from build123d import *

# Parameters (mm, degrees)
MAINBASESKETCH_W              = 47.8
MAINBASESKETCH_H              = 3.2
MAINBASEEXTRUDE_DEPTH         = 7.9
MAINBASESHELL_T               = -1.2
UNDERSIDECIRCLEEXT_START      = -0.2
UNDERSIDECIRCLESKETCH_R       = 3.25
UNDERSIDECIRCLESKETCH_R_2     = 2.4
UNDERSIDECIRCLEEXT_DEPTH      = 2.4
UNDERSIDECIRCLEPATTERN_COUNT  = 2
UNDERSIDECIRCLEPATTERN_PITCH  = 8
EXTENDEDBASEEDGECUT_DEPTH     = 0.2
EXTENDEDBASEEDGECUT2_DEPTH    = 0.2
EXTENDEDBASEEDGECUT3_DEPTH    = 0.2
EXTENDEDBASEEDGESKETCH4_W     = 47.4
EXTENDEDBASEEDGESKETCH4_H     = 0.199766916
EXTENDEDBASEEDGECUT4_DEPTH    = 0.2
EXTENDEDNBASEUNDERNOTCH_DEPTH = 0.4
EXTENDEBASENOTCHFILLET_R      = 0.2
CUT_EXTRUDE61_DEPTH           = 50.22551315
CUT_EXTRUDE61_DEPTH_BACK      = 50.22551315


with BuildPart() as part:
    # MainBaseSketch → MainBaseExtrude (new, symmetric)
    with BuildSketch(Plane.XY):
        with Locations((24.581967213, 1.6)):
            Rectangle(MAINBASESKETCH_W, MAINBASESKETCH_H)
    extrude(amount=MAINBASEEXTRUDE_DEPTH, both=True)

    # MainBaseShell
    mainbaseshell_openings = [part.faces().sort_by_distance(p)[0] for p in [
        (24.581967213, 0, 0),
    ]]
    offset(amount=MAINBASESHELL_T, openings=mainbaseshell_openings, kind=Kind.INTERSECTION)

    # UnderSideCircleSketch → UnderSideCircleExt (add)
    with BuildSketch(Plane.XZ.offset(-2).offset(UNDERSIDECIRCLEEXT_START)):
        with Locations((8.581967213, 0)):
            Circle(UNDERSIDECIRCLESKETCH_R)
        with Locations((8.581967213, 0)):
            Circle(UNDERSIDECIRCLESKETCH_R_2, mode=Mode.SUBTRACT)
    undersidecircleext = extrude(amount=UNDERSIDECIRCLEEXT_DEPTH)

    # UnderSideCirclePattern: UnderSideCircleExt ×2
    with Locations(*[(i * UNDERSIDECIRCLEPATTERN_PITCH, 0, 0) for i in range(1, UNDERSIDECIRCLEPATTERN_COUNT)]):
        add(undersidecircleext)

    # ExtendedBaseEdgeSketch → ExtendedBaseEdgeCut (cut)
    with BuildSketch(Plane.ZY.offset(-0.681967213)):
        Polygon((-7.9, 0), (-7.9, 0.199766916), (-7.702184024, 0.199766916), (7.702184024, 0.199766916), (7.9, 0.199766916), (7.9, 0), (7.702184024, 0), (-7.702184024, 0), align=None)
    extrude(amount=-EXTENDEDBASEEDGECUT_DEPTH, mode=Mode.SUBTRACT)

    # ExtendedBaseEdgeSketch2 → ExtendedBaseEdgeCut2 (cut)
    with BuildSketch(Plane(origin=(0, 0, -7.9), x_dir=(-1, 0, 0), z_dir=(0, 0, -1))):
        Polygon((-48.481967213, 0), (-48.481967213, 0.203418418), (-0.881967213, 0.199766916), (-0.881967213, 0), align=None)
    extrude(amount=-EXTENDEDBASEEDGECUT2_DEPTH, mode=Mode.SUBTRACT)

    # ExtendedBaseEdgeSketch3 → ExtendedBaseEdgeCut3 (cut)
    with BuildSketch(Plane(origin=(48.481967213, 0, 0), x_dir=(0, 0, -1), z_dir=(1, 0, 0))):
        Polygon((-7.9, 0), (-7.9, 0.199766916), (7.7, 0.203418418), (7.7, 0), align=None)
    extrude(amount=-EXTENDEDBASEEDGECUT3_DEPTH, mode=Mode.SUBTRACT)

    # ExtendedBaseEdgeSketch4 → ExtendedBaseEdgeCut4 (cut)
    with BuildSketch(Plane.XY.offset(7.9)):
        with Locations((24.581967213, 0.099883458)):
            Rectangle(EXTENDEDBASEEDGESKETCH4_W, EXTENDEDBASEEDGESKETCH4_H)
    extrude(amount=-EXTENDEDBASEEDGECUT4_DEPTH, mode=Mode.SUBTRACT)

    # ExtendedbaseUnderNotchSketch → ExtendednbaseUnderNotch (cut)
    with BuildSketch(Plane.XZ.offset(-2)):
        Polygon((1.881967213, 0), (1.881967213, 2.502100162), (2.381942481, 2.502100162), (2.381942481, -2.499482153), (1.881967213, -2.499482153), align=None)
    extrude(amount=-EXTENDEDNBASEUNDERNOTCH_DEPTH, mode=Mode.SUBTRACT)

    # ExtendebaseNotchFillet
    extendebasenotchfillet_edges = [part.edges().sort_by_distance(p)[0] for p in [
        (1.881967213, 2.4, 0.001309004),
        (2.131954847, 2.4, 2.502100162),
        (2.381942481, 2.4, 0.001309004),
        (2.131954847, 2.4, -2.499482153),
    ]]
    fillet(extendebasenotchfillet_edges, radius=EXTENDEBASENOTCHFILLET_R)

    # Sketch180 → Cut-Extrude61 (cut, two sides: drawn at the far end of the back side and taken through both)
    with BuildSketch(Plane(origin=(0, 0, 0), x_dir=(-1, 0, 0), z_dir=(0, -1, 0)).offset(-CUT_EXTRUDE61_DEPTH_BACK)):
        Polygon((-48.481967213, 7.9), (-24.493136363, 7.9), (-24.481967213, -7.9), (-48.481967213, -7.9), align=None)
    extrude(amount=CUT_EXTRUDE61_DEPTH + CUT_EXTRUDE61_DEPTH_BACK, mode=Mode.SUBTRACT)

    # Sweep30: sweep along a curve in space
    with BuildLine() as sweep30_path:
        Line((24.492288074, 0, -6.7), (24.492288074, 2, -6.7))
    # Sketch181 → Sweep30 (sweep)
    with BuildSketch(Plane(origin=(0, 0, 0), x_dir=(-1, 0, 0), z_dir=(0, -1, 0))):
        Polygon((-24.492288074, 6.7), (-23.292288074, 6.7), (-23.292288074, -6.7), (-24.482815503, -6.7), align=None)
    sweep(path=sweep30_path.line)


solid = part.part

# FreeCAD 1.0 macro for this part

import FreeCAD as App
import Part
import Sketcher


def edges_at(feature, points):
    """Names of the edges that pass closest to the given points."""
    edges = feature.Shape.Edges
    near = lambda p: min(range(len(edges)), key=lambda i: edges[i].distToShape(Part.Vertex(*p))[0])
    return sorted({f"Edge{near(p) + 1}" for p in points})


def faces_at(feature, points):
    """Names of the faces that lie closest to the given points."""
    faces = feature.Shape.Faces
    near = lambda p: min(range(len(faces)), key=lambda i: faces[i].distToShape(Part.Vertex(*p))[0])
    return sorted({f"Face{near(p) + 1}" for p in points})


def add_polygon(sketch, points):
    """Adds a closed chain of lines whose ends are joined by coincident constraints."""
    first, n = sketch.GeometryCount, len(points)
    for a, b in zip(points, points[1:] + points[:1]):
        sketch.addGeometry(Part.LineSegment(App.Vector(*a, 0), App.Vector(*b, 0)), False)
    for i in range(n):
        sketch.addConstraint(Sketcher.Constraint("Coincident", first + i, 2, first + (i + 1) % n, 1))

doc = App.newDocument("Part")
body = doc.addObject("PartDesign::Body", "Body")

sketch1 = body.newObject("Sketcher::SketchObject", "Sketch")
sketch1.AttachmentSupport = (doc.getObject("XY_Plane"), [""])
sketch1.MapMode = "FlatFace"
add_polygon(sketch1, [(0.7, 3.2), (0.7, 0), (48.5, 0), (48.5, 3.2)])
sketch1.addConstraint([
    Sketcher.Constraint("Vertical", 0),
    Sketcher.Constraint("Horizontal", 1),
    Sketcher.Constraint("Vertical", 2),
    Sketcher.Constraint("Horizontal", 3),
    Sketcher.Constraint("PointOnObject", 0, 2, -1),
    Sketcher.Constraint("DistanceX", 1, 1, 1, 2, 47.8),
    Sketcher.Constraint("DistanceY", 0, 2, 0, 1, 3.2),
    Sketcher.Constraint("DistanceX", -1, 1, 0, 2, 0.681967),
])
pad1 = body.newObject("PartDesign::Pad", "Pad")
pad1.Profile = sketch1
pad1.Length = 15.8
pad1.Midplane = True
doc.recompute()

thickness = body.newObject("PartDesign::Thickness", "Thickness")
thickness.Base = (pad1, faces_at(pad1, [(24.582, 0, 0)]))
thickness.Value = 1.2
thickness.Reversed = True
thickness.Join = "Intersection"

sketch2 = body.newObject("Sketcher::SketchObject", "Sketch001")
sketch2.AttachmentSupport = (doc.getObject("XZ_Plane"), [""])
sketch2.MapMode = "FlatFace"
sketch2.AttachmentOffset = App.Placement(App.Vector(0, 0, -2.2), App.Rotation())
sketch2.addGeometry([
    Part.Circle(App.Vector(8.6, 0, 0), App.Vector(0, 0, 1), 3.2),
    Part.Circle(App.Vector(8.6, 0, 0), App.Vector(0, 0, 1), 2.4),
], False)
sketch2.addConstraint([
    Sketcher.Constraint("Coincident", 1, 3, 0, 3),
    Sketcher.Constraint("PointOnObject", 0, 3, -1),
    Sketcher.Constraint("Diameter", 0, 6.5),
    Sketcher.Constraint("Diameter", 1, 4.8),
    Sketcher.Constraint("DistanceX", -1, 1, 0, 3, 8.581967),
])
pad2 = body.newObject("PartDesign::Pad", "Pad001")
pad2.Profile = sketch2
pad2.Length = 2.4
doc.recompute()

linearpattern = body.newObject("PartDesign::LinearPattern", "LinearPattern")
linearpattern.Originals = [pad2]
linearpattern.Direction = (doc.getObject("X_Axis"), [""])
linearpattern.Mode = "offset"
linearpattern.Offset = 8
linearpattern.Occurrences = 2
body.Tip = linearpattern

sketch3 = body.newObject("Sketcher::SketchObject", "Sketch002")
sketch3.AttachmentSupport = (doc.getObject("YZ_Plane"), [""])
sketch3.MapMode = "FlatFace"
sketch3.AttachmentOffset = App.Placement(App.Vector(0, 0, 0.681967), App.Rotation())
add_polygon(sketch3, [(0.2, -7.9), (0, -7.9), (0, 7.9), (0.2, 7.9)])
sketch3.addConstraint([
    Sketcher.Constraint("Horizontal", 0),
    Sketcher.Constraint("Vertical", 1),
    Sketcher.Constraint("Horizontal", 2),
    Sketcher.Constraint("Vertical", 3),
    Sketcher.Constraint("Symmetric", 0, 2, 1, 2, -1, 1),
    Sketcher.Constraint("DistanceY", 1, 1, 1, 2, 15.8),
    Sketcher.Constraint("DistanceX", 0, 2, 0, 1, 0.199767),
])
pocket1 = body.newObject("PartDesign::Pocket", "Pocket")
pocket1.Profile = sketch3
pocket1.Length = 0.2
pocket1.Reversed = True

sketch4 = body.newObject("Sketcher::SketchObject", "Sketch003")
sketch4.AttachmentSupport = (doc.getObject("XY_Plane"), [""])
sketch4.MapMode = "FlatFace"
sketch4.AttachmentOffset = App.Placement(App.Vector(0, 0, -7.9), App.Rotation())
add_polygon(sketch4, [(48.48, 0.2), (48.48, 0), (0.88, 0), (0.88, 0.2)])
sketch4.addConstraint([
    Sketcher.Constraint("Vertical", 0),
    Sketcher.Constraint("Horizontal", 1),
    Sketcher.Constraint("Vertical", 2),
    Sketcher.Constraint("PointOnObject", 0, 2, -1),
    Sketcher.Constraint("DistanceX", 1, 2, 1, 1, 47.6),
    Sketcher.Constraint("DistanceY", 0, 2, 0, 1, 0.203418),
    Sketcher.Constraint("DistanceY", 2, 1, 2, 2, 0.199767),
    Sketcher.Constraint("DistanceX", -1, 1, 0, 2, 48.481967),
])
pocket2 = body.newObject("PartDesign::Pocket", "Pocket001")
pocket2.Profile = sketch4
pocket2.Length = 0.2
pocket2.Reversed = True

sketch5 = body.newObject("Sketcher::SketchObject", "Sketch004")
sketch5.AttachmentSupport = (doc.getObject("YZ_Plane"), [""])
sketch5.MapMode = "FlatFace"
sketch5.AttachmentOffset = App.Placement(App.Vector(0, 0, 48.481967), App.Rotation())
add_polygon(sketch5, [(0.2, 7.9), (0, 7.9), (0, -7.7), (0.2, -7.7)])
sketch5.addConstraint([
    Sketcher.Constraint("Horizontal", 0),
    Sketcher.Constraint("Vertical", 1),
    Sketcher.Constraint("Horizontal", 2),
    Sketcher.Constraint("PointOnObject", 0, 2, -2),
    Sketcher.Constraint("DistanceY", 1, 2, 1, 1, 15.6),
    Sketcher.Constraint("DistanceY", -1, 1, 0, 2, 7.9),
    Sketcher.Constraint("DistanceX", 2, 1, 2, 2, 0.203418),
    Sketcher.Constraint("DistanceX", 0, 2, 0, 1, 0.199767),
])
pocket3 = body.newObject("PartDesign::Pocket", "Pocket002")
pocket3.Profile = sketch5
pocket3.Length = 0.2

sketch6 = body.newObject("Sketcher::SketchObject", "Sketch005")
sketch6.AttachmentSupport = (doc.getObject("XY_Plane"), [""])
sketch6.MapMode = "FlatFace"
sketch6.AttachmentOffset = App.Placement(App.Vector(0, 0, 7.9), App.Rotation())
add_polygon(sketch6, [(0.88, 0.2), (0.88, 0), (48.28, 0), (48.28, 0.2)])
sketch6.addConstraint([
    Sketcher.Constraint("Vertical", 0),
    Sketcher.Constraint("Horizontal", 1),
    Sketcher.Constraint("Vertical", 2),
    Sketcher.Constraint("Horizontal", 3),
    Sketcher.Constraint("PointOnObject", 0, 2, -1),
    Sketcher.Constraint("DistanceX", 1, 1, 1, 2, 47.4),
    Sketcher.Constraint("DistanceY", 0, 2, 0, 1, 0.199767),
    Sketcher.Constraint("DistanceX", -1, 1, 0, 2, 0.881967),
])
pocket4 = body.newObject("PartDesign::Pocket", "Pocket003")
pocket4.Profile = sketch6
pocket4.Length = 0.2

sketch7 = body.newObject("Sketcher::SketchObject", "Sketch006")
sketch7.AttachmentSupport = (doc.getObject("XZ_Plane"), [""])
sketch7.MapMode = "FlatFace"
sketch7.AttachmentOffset = App.Placement(App.Vector(0, 0, -2), App.Rotation())
add_polygon(sketch7, [(1.88, 2.5), (1.88, -2.5), (2.38, -2.5), (2.38, 2.5)])
sketch7.addConstraint([
    Sketcher.Constraint("Vertical", 0),
    Sketcher.Constraint("Horizontal", 1),
    Sketcher.Constraint("Vertical", 2),
    Sketcher.Constraint("Horizontal", 3),
    Sketcher.Constraint("DistanceY", -1, 1, 2, 2, 2.5021),
    Sketcher.Constraint("DistanceX", 1, 1, 1, 2, 0.499975),
    Sketcher.Constraint("DistanceY", 0, 2, 0, 1, 5.001582),
    Sketcher.Constraint("DistanceX", -1, 1, 0, 2, 1.881967),
])
pocket5 = body.newObject("PartDesign::Pocket", "Pocket004")
pocket5.Profile = sketch7
pocket5.Length = 0.4
doc.recompute()

fillet = body.newObject("PartDesign::Fillet", "Fillet")
fillet.Base = (pocket5, edges_at(pocket5, [
    (1.882, 2.4, 0.001),
    (2.132, 2.4, 2.502),
    (2.382, 2.4, 0.001),
    (2.132, 2.4, -2.499),
]))
fillet.Radius = 0.2

sketch8 = body.newObject("Sketcher::SketchObject", "Sketch007")
sketch8.AttachmentSupport = (doc.getObject("XZ_Plane"), [""])
sketch8.MapMode = "FlatFace"
add_polygon(sketch8, [(24, -8), (48, -8), (48, 8), (24, 8)])
sketch8.addConstraint([
    Sketcher.Constraint("Horizontal", 0),
    Sketcher.Constraint("Vertical", 1),
    Sketcher.Constraint("Horizontal", 2),
    Sketcher.Constraint("DistanceX", 2, 2, 2, 1, 24.0),
    Sketcher.Constraint("DistanceY", 1, 1, 1, 2, 15.8),
    Sketcher.Constraint("DistanceY", 0, 2, -1, 1, 7.9),
    Sketcher.Constraint("DistanceX", 0, 1, 0, 2, 23.988831),
    Sketcher.Constraint("DistanceX", -1, 1, 0, 2, 48.481967),
])
pocket6 = body.newObject("PartDesign::Pocket", "Pocket005")
pocket6.Profile = sketch8
pocket6.Type = "ThroughAll"
pocket6.Midplane = True

sketch9 = body.newObject("Sketcher::SketchObject", "Sketch008")
sketch9.AttachmentSupport = (doc.getObject("XZ_Plane"), [""])
sketch9.MapMode = "FlatFace"
add_polygon(sketch9, [(23.3, -6.7), (24.5, -6.7), (24.5, 6.7), (23.3, 6.7)])
sketch9.addConstraint([
    Sketcher.Constraint("Horizontal", 0),
    Sketcher.Constraint("Horizontal", 2),
    Sketcher.Constraint("Vertical", 3),
    Sketcher.Constraint("DistanceX", 0, 1, 0, 2, 1.2),
    Sketcher.Constraint("DistanceY", 3, 2, 3, 1, 13.4),
    Sketcher.Constraint("DistanceY", 0, 2, -1, 1, 6.7),
    Sketcher.Constraint("DistanceX", 2, 2, 2, 1, 1.190527),
    Sketcher.Constraint("DistanceX", -1, 1, 0, 2, 24.492288),
])

sketch10 = body.newObject("Sketcher::SketchObject", "Sketch009")
sketch10.AttachmentSupport = (doc.getObject("XY_Plane"), [""])
sketch10.MapMode = "FlatFace"
sketch10.AttachmentOffset = App.Placement(App.Vector(0, 0, -6.7), App.Rotation())
sketch10.addGeometry(Part.LineSegment(App.Vector(24.5, 0, 0), App.Vector(24.5, 2, 0)), False)
sketch10.addConstraint([
    Sketcher.Constraint("Vertical", 0),
    Sketcher.Constraint("PointOnObject", 0, 1, -1),
    Sketcher.Constraint("DistanceY", 0, 1, 0, 2, 2.0),
    Sketcher.Constraint("DistanceX", -1, 1, 0, 1, 24.492288),
])
doc.recompute()

additivepipe = body.newObject("PartDesign::AdditivePipe", "AdditivePipe")
additivepipe.Profile = sketch9
additivepipe.Spine = (sketch10, ["Edge1"])

doc.recompute()
